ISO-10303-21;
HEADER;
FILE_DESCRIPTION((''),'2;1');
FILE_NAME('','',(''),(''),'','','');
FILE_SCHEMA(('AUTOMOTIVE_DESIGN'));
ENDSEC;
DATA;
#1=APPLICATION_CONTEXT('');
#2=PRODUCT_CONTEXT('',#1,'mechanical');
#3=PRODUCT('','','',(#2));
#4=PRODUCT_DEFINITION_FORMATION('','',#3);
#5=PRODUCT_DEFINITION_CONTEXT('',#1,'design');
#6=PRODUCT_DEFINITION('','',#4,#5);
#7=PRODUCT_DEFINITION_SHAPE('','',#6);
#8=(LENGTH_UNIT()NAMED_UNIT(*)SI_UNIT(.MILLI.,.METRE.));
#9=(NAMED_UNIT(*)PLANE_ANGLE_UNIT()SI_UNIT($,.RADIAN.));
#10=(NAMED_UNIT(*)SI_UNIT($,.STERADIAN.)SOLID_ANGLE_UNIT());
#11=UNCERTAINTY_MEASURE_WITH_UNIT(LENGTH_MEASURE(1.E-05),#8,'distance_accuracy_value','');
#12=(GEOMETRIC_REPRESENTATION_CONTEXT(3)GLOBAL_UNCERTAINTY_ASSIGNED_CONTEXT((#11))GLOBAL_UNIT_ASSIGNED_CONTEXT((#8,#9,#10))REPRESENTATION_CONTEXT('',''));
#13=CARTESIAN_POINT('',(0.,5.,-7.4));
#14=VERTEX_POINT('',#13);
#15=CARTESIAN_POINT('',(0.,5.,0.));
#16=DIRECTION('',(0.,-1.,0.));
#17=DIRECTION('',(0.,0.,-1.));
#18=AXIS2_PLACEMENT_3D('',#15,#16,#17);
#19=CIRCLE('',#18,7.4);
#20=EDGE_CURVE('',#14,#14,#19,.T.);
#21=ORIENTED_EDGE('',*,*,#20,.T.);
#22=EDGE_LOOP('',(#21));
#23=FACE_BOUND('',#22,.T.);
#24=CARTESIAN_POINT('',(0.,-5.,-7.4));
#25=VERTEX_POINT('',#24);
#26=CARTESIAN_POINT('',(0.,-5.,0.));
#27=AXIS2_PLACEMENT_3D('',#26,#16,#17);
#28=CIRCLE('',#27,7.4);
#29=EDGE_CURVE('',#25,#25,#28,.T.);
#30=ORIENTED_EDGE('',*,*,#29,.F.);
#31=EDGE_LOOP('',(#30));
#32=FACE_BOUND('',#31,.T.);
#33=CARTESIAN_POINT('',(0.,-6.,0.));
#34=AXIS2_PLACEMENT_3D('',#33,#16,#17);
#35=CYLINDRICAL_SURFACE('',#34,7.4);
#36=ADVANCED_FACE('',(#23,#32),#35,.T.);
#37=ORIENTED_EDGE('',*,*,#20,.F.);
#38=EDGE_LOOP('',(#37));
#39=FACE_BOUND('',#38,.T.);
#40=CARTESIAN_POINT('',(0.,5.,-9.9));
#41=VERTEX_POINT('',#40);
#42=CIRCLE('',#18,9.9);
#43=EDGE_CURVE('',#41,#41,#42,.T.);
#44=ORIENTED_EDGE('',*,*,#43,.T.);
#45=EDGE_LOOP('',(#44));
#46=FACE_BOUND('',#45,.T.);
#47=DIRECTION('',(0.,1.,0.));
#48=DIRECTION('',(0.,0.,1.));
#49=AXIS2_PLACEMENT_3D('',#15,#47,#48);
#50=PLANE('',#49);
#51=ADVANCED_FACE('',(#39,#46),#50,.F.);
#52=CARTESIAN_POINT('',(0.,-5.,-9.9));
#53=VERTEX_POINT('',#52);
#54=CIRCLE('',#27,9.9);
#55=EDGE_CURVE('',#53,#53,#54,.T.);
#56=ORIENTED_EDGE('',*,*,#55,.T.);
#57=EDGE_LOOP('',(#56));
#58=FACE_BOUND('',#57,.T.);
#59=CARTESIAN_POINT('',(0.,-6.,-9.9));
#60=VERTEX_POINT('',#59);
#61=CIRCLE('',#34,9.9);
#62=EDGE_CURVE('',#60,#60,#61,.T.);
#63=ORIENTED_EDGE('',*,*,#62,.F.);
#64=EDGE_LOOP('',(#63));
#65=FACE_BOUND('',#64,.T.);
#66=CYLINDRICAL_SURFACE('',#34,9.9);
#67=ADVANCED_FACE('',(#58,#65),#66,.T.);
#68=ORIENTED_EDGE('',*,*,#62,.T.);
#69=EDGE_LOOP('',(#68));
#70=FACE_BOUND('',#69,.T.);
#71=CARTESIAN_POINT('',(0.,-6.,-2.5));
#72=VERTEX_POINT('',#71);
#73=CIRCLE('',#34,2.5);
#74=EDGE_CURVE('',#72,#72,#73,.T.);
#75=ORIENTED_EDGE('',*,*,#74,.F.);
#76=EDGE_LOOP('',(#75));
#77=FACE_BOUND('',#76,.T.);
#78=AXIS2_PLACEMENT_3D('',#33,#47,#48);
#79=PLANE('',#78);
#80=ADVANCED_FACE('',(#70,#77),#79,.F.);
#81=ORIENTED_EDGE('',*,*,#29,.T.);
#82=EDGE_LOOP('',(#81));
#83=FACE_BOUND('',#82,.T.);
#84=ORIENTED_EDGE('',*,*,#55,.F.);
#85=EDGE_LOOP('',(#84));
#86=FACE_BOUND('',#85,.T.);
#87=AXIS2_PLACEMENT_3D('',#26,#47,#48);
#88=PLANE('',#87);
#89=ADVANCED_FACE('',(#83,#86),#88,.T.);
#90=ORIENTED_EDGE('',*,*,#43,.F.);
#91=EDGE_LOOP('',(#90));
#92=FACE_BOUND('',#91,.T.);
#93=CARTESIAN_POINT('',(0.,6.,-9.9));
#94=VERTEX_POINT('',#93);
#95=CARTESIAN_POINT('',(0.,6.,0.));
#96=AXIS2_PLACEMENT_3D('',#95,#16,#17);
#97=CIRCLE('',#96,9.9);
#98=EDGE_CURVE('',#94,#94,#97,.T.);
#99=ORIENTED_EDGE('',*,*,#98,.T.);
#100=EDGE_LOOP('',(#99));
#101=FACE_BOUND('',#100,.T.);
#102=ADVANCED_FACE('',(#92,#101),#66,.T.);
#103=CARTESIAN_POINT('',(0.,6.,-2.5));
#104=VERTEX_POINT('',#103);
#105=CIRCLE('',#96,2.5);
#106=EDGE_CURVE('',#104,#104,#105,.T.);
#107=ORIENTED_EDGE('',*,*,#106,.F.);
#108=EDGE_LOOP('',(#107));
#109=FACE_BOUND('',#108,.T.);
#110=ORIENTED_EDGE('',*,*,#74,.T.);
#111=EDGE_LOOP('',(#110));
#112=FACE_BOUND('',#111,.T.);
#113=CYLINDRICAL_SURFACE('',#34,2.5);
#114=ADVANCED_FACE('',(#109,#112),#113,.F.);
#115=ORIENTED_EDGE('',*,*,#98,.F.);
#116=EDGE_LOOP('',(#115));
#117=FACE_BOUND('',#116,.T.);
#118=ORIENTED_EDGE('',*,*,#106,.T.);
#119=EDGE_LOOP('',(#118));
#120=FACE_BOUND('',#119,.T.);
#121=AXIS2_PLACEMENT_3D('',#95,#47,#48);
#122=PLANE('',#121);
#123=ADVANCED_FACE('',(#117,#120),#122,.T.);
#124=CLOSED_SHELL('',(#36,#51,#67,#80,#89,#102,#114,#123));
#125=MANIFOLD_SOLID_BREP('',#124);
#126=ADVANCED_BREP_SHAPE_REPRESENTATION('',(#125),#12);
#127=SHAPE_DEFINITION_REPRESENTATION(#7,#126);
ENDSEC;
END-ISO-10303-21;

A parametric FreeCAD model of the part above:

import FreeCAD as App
import Part
import Sketcher

V = App.Vector


def add_polygon(sketch, points):
    """Adds a closed chain of lines whose ends are joined by coincident constraints."""
    first, n = sketch.GeometryCount, len(points)
    for a, b in zip(points, points[1:] + points[:1]):
        sketch.addGeometry(Part.LineSegment(App.Vector(*a, 0), App.Vector(*b, 0)), False)
    for i in range(n):
        sketch.addConstraint(Sketcher.Constraint("Coincident", first + i, 2, first + (i + 1) % n, 1))

doc = App.newDocument("Part")
params = doc.addObject("Spreadsheet::Sheet", "Params")
for row, (alias, value) in enumerate([
    ("sketch1_height", "1 mm"),
    ("sketch1_height2", "10 mm"),
    ("sketch1_width", "7.4 mm"),
    ("sketch1_width2", "2.5 mm"),
    ("revolution_angle", "360 deg"),
], start=1):
    params.set(f"A{row}", alias)
    params.set(f"B{row}", "=" + value)
    params.setAlias(f"B{row}", alias)

body = doc.addObject("PartDesign::Body", "Body")

sketch1 = doc.addObject("Sketcher::SketchObject", "Sketch")
body.addObject(sketch1)
sketch1.AttachmentSupport = (doc.XY_Plane, [""])
sketch1.MapMode = "FlatFace"
add_polygon(sketch1, [(2.5, -6), (9.9, -6), (9.9, -5), (7.4, -5), (7.4, 5), (9.9, 5), (9.9, 6), (2.5, 6)])
sketch1.addConstraint([
    Sketcher.Constraint("Horizontal", 0),
    Sketcher.Constraint("Vertical", 1),
    Sketcher.Constraint("Horizontal", 2),
    Sketcher.Constraint("Vertical", 3),
    Sketcher.Constraint("Horizontal", 4),
    Sketcher.Constraint("Vertical", 5),
    Sketcher.Constraint("Horizontal", 6),
    Sketcher.Constraint("Vertical", 7),
    Sketcher.Constraint("Symmetric", 1, 2, 4, 2, -1),
    Sketcher.Constraint("Equal", 1, 5),
    Sketcher.Constraint("DistanceY", 1, 1, 1, 2, 1.0),
    Sketcher.Constraint("DistanceY", 3, 1, 3, 2, 10.0),
    Sketcher.Constraint("DistanceX", 0, 1, 0, 2, 7.4),
    Sketcher.Constraint("DistanceX", 2, 2, 2, 1, 2.5),
    Sketcher.Constraint("DistanceX", -1, 1, 0, 2, 9.9),
])
sketch1.setExpression("Constraints[18]", "Params.sketch1_height")
sketch1.setExpression("Constraints[19]", "Params.sketch1_height2")
sketch1.setExpression("Constraints[20]", "Params.sketch1_width")
sketch1.setExpression("Constraints[21]", "Params.sketch1_width2")
revolution = doc.addObject("PartDesign::Revolution", "Revolution")
body.addObject(revolution)
revolution.Profile = sketch1
revolution.ReferenceAxis = (sketch1, ["V_Axis"])
revolution.setExpression("Angle", "Params.revolution_angle")

doc.recompute()
